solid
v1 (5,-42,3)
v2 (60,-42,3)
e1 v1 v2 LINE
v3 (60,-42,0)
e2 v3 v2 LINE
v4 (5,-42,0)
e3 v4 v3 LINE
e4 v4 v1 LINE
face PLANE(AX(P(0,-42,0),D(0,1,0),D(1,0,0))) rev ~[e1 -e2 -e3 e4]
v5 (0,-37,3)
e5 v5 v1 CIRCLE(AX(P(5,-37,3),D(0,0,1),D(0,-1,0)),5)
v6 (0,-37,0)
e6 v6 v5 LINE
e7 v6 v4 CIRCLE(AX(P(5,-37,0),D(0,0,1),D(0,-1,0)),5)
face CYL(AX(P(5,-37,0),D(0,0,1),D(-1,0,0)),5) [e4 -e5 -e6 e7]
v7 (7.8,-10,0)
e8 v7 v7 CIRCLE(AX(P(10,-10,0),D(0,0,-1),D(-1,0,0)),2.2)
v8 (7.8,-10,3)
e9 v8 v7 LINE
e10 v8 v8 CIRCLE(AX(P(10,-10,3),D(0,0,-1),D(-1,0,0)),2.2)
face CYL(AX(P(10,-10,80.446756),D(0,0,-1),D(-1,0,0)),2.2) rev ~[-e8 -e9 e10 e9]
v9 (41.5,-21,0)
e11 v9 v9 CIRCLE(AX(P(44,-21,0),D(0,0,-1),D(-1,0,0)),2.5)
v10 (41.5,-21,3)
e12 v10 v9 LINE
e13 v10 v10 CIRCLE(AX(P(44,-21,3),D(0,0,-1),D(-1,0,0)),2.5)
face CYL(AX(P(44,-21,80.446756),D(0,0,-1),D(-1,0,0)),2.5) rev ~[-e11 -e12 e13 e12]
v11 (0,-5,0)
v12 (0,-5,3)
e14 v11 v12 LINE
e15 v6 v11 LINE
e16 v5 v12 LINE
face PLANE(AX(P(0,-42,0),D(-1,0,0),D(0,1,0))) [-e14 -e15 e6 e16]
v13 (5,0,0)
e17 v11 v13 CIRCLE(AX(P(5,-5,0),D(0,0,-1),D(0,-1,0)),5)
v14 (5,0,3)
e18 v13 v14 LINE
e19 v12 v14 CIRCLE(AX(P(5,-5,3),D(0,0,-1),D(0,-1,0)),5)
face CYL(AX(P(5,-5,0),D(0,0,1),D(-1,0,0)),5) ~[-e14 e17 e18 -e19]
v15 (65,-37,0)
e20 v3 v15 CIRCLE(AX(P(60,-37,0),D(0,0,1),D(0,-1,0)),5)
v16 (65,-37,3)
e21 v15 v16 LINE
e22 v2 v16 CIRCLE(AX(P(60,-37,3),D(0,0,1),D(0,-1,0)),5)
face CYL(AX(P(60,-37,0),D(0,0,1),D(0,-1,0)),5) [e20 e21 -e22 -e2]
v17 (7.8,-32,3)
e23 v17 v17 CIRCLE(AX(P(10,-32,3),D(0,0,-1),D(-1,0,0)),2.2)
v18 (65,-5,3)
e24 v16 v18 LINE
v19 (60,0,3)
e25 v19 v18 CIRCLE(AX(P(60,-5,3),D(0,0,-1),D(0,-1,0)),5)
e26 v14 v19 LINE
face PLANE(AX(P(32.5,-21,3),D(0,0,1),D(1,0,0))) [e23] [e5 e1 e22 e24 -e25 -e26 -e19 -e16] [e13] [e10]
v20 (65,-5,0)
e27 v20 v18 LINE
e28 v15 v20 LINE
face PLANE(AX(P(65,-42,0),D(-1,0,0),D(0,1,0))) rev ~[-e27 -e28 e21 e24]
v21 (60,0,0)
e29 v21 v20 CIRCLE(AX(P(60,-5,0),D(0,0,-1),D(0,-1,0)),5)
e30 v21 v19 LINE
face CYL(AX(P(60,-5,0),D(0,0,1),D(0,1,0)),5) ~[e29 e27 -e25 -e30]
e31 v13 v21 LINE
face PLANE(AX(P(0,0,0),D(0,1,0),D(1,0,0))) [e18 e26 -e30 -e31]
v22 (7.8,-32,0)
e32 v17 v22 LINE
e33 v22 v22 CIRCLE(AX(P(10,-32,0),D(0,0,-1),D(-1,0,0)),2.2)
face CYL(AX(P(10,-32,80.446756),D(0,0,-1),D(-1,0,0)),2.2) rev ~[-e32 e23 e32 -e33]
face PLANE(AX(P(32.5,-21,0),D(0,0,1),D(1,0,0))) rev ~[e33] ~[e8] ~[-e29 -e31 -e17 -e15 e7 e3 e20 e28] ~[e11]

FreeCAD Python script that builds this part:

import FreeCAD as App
import Part
import Sketcher
from FreeCAD import Vector


def edges_at(feature, points):
    """Names of the edges that pass closest to the given points."""
    edges = feature.Shape.Edges
    near = lambda p: min(range(len(edges)), key=lambda i: edges[i].distToShape(Part.Vertex(*p))[0])
    return sorted({f"Edge{near(p) + 1}" for p in points})

doc = App.newDocument("Part")
body = doc.addObject("PartDesign::Body", "Body")

sketch1 = body.newObject("Sketcher::SketchObject", "Sketch")
sketch1.AttachmentSupport = (doc.getObject("XY_Plane"), [""])
sketch1.MapMode = "FlatFace"
sketch1.addGeometry([
    Part.LineSegment(Vector(0, 0, 0), Vector(0, -42, 0)),
    Part.LineSegment(Vector(0, -42, 0), Vector(65, -42, 0)),
    Part.LineSegment(Vector(65, -42, 0), Vector(65, 0, 0)),
    Part.LineSegment(Vector(65, 0, 0), Vector(0, 0, 0)),
], False)
sketch1.addConstraint([
    Sketcher.Constraint("Coincident", 0, 2, 1, 1),
    Sketcher.Constraint("Coincident", 1, 2, 2, 1),
    Sketcher.Constraint("Coincident", 2, 2, 3, 1),
    Sketcher.Constraint("Coincident", 3, 2, 0, 1),
    Sketcher.Constraint("Vertical", 0),
    Sketcher.Constraint("Horizontal", 1),
    Sketcher.Constraint("Vertical", 2),
    Sketcher.Constraint("Horizontal", 3),
    Sketcher.Constraint("Coincident", 3, 2, -1, 1),
    Sketcher.Constraint("DistanceX", 1, 1, 1, 2, 65.0),
    Sketcher.Constraint("DistanceY", 0, 2, 0, 1, 42.0),
])
pad1 = body.newObject("PartDesign::Pad", "Pad")
pad1.Profile = sketch1
pad1.Length = 3

sketch2 = body.newObject("Sketcher::SketchObject", "Sketch001")
sketch2.AttachmentSupport = (doc.getObject("XY_Plane"), [""])
sketch2.MapMode = "FlatFace"
sketch2.AttachmentOffset = App.Placement(Vector(0, 0, 3), App.Rotation())
sketch2.addGeometry([
    Part.Circle(Vector(10, -10, 0), Vector(0, 0, 1), 2.2),
    Part.Circle(Vector(10, -32, 0), Vector(0, 0, 1), 2.2),
], False)
sketch2.addConstraint([
    Sketcher.Constraint("Equal", 0, 1),
    Sketcher.Constraint("Vertical", 0, 3, 1, 3),
    Sketcher.Constraint("Diameter", 0, 4.4),
    Sketcher.Constraint("DistanceX", -1, 1, 0, 3, 10.0),
    Sketcher.Constraint("DistanceY", 0, 3, -1, 1, 10.0),
    Sketcher.Constraint("DistanceY", 1, 3, -1, 1, 32.0),
])
doc.recompute()
hole = body.newObject("PartDesign::Hole", "Hole")
hole.Profile = sketch2
hole.ThreadType = "None"
hole.Diameter = 4.4
hole.DepthType = "ThroughAll"

sketch3 = body.newObject("Sketcher::SketchObject", "Sketch002")
sketch3.AttachmentSupport = (doc.getObject("XY_Plane"), [""])
sketch3.MapMode = "FlatFace"
sketch3.AttachmentOffset = App.Placement(Vector(0, 0, 3), App.Rotation())
sketch3.addGeometry(Part.Circle(Vector(44, -21, 0), Vector(0, 0, 1), 2.5), False)
sketch3.addConstraint([
    Sketcher.Constraint("Diameter", 0, 5.0),
    Sketcher.Constraint("DistanceX", -1, 1, 0, 3, 44.0),
    Sketcher.Constraint("DistanceY", 0, 3, -1, 1, 21.0),
])
doc.recompute()
hole2 = body.newObject("PartDesign::Hole", "Hole001")
hole2.Profile = sketch3
hole2.ThreadType = "None"
hole2.Diameter = 5
hole2.DepthType = "ThroughAll"
doc.recompute()

fillet = body.newObject("PartDesign::Fillet", "Fillet")
fillet.Base = (hole2, edges_at(hole2, [
    (0, -42, 1.5),
    (65, -42, 1.5),
    (65, 0, 1.5),
    (0, 0, 1.5),
]))
fillet.Radius = 5

doc.recompute()
